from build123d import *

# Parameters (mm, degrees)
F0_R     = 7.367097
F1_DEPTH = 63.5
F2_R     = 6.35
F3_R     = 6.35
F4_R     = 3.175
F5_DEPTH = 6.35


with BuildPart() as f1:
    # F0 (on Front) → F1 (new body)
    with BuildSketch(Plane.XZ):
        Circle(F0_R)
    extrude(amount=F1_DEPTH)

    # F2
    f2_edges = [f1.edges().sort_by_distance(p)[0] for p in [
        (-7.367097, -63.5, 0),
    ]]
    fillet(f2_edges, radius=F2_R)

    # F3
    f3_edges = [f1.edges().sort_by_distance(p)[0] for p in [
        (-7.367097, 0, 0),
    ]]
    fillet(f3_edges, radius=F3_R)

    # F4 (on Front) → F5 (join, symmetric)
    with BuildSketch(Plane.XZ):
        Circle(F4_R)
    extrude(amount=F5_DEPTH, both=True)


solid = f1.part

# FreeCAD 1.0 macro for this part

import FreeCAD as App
import Part
import Sketcher
Q = App.Units.Quantity


def edges_at(feature, points):
    """Names of the edges that pass closest to the given points."""
    edges = feature.Shape.Edges
    near = lambda p: min(range(len(edges)), key=lambda i: edges[i].distToShape(Part.Vertex(*p))[0])
    return sorted({f"Edge{near(p) + 1}" for p in points})

doc = App.newDocument("Part")
body = doc.addObject("PartDesign::Body", "Body")

# Sketch on XZ plane
sketch1 = doc.addObject("Sketcher::SketchObject", "Sketch")
body.addObject(sketch1)
sketch1.AttachmentSupport = (doc.XZ_Plane, [""])
sketch1.MapMode = "FlatFace"
sketch1.addGeometry(Part.Circle(App.Vector(0, 0, 0), App.Vector(0, 0, 1), 7), False)
sketch1.addConstraint([
    Sketcher.Constraint("Coincident", 0, 3, -1, 1),
    Sketcher.Constraint("Diameter", 0, Q("14.734194 mm")),
])
pad1 = doc.addObject("PartDesign::Pad", "Pad")
body.addObject(pad1)
pad1.Profile = sketch1
pad1.Length = Q("2.5 in")
doc.recompute()

fillet = doc.addObject("PartDesign::Fillet", "Fillet")
body.addObject(fillet)
fillet.Base = (pad1, edges_at(pad1, [(-7.367, -63.5, 0)]))
fillet.Radius = Q("0.25 in")
doc.recompute()

fillet2 = doc.addObject("PartDesign::Fillet", "Fillet001")
body.addObject(fillet2)
fillet2.Base = (fillet, edges_at(fillet, [(-7.367, 0, 0)]))
fillet2.Radius = Q("0.25 in")

# Sketch on XZ plane
sketch2 = doc.addObject("Sketcher::SketchObject", "Sketch001")
body.addObject(sketch2)
sketch2.AttachmentSupport = (doc.XZ_Plane, [""])
sketch2.MapMode = "FlatFace"
sketch2.addGeometry(Part.Circle(App.Vector(0, 0, 0), App.Vector(0, 0, 1), 3.2), False)
sketch2.addConstraint([
    Sketcher.Constraint("Coincident", 0, 3, -1, 1),
    Sketcher.Constraint("Diameter", 0, Q("0.25 in")),
])
pad2 = doc.addObject("PartDesign::Pad", "Pad001")
body.addObject(pad2)
pad2.Profile = sketch2
pad2.Length = Q("0.5 in")
pad2.Midplane = True

doc.recompute()
